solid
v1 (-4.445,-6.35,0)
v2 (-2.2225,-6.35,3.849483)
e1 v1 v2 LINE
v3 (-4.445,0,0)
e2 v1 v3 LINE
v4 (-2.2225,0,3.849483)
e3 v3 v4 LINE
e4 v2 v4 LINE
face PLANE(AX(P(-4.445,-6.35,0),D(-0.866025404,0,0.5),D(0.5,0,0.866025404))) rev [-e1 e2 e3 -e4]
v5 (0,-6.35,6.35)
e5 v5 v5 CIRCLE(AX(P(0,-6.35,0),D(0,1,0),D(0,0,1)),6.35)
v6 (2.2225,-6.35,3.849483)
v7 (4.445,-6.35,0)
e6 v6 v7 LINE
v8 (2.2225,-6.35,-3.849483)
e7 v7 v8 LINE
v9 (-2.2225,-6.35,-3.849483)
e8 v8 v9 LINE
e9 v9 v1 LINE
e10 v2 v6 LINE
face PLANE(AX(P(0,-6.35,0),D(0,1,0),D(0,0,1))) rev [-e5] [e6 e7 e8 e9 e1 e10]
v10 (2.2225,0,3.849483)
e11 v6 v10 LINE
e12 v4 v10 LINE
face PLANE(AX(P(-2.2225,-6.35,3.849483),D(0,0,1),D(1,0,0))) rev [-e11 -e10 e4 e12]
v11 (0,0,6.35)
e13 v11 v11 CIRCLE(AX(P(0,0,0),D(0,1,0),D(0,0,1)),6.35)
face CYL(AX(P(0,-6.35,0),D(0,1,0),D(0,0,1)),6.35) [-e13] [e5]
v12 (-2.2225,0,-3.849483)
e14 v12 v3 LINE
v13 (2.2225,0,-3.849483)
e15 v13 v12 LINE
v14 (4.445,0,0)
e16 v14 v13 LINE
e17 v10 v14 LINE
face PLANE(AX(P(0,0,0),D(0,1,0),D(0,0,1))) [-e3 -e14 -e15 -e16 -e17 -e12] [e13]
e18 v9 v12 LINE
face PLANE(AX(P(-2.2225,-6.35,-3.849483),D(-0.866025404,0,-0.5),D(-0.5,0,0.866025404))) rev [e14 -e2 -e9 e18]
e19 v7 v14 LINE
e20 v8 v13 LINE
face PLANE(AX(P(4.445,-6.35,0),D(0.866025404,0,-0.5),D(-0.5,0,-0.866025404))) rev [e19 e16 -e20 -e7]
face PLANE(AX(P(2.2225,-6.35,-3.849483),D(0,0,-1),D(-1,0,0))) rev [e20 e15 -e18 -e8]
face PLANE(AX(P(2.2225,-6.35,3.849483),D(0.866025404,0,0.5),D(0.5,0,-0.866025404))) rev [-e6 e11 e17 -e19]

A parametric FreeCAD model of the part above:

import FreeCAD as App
import Part
import Sketcher

V = App.Vector
Q = App.Units.Quantity


def add_polygon(sketch, points):
    """Adds a closed chain of lines whose ends are joined by coincident constraints."""
    first, n = sketch.GeometryCount, len(points)
    for a, b in zip(points, points[1:] + points[:1]):
        sketch.addGeometry(Part.LineSegment(App.Vector(*a, 0), App.Vector(*b, 0)), False)
    for i in range(n):
        sketch.addConstraint(Sketcher.Constraint("Coincident", first + i, 2, first + (i + 1) % n, 1))

doc = App.newDocument("Part")
body = doc.addObject("PartDesign::Body", "Body")

sketch1 = body.newObject("Sketcher::SketchObject", "Sketch")
sketch1.AttachmentSupport = (doc.getObject("XZ_Plane"), [""])
sketch1.MapMode = "FlatFace"
sketch1.addGeometry(Part.Circle(V(0, 0, 0), V(0, 0, 1), 6), False)
sketch1.addConstraint([
    Sketcher.Constraint("Coincident", 0, 3, -1, 1),
    Sketcher.Constraint("Diameter", 0, Q("0.5 in")),
])
pad1 = body.newObject("PartDesign::Pad", "Pad")
pad1.Profile = sketch1
pad1.Length = Q("0.25 in")

sketch2 = body.newObject("Sketcher::SketchObject", "Sketch001")
sketch2.AttachmentSupport = (doc.getObject("XZ_Plane"), [""])
sketch2.MapMode = "FlatFace"
add_polygon(sketch2, [(2.2, -3.8), (-2.2, -3.8), (-4.4, 0), (-2.2, 3.8), (2.2, 3.8), (4.4, 0)])
sketch2.addConstraint([
    Sketcher.Constraint("Horizontal", 0),
    Sketcher.Constraint("Horizontal", 3),
    Sketcher.Constraint("Symmetric", 0, 2, 3, 2, -1, 1),
    Sketcher.Constraint("Symmetric", 1, 2, 4, 2, -1, 1),
    Sketcher.Constraint("PointOnObject", 1, 2, -1),
    Sketcher.Constraint("Parallel", 2, 5),
    Sketcher.Constraint("Vertical", 0, 2, 2, 2),
    Sketcher.Constraint("Angle", 1, Q("120 deg")),
    Sketcher.Constraint("DistanceX", 0, 2, 0, 1, Q("0.175 in")),
    Sketcher.Constraint("DistanceX", 1, 2, 4, 2, Q("0.35 in")),
])
pocket1 = body.newObject("PartDesign::Pocket", "Pocket")
pocket1.Profile = sketch2
pocket1.Type = "ThroughAll"
pocket1.Reversed = True

doc.recompute()
